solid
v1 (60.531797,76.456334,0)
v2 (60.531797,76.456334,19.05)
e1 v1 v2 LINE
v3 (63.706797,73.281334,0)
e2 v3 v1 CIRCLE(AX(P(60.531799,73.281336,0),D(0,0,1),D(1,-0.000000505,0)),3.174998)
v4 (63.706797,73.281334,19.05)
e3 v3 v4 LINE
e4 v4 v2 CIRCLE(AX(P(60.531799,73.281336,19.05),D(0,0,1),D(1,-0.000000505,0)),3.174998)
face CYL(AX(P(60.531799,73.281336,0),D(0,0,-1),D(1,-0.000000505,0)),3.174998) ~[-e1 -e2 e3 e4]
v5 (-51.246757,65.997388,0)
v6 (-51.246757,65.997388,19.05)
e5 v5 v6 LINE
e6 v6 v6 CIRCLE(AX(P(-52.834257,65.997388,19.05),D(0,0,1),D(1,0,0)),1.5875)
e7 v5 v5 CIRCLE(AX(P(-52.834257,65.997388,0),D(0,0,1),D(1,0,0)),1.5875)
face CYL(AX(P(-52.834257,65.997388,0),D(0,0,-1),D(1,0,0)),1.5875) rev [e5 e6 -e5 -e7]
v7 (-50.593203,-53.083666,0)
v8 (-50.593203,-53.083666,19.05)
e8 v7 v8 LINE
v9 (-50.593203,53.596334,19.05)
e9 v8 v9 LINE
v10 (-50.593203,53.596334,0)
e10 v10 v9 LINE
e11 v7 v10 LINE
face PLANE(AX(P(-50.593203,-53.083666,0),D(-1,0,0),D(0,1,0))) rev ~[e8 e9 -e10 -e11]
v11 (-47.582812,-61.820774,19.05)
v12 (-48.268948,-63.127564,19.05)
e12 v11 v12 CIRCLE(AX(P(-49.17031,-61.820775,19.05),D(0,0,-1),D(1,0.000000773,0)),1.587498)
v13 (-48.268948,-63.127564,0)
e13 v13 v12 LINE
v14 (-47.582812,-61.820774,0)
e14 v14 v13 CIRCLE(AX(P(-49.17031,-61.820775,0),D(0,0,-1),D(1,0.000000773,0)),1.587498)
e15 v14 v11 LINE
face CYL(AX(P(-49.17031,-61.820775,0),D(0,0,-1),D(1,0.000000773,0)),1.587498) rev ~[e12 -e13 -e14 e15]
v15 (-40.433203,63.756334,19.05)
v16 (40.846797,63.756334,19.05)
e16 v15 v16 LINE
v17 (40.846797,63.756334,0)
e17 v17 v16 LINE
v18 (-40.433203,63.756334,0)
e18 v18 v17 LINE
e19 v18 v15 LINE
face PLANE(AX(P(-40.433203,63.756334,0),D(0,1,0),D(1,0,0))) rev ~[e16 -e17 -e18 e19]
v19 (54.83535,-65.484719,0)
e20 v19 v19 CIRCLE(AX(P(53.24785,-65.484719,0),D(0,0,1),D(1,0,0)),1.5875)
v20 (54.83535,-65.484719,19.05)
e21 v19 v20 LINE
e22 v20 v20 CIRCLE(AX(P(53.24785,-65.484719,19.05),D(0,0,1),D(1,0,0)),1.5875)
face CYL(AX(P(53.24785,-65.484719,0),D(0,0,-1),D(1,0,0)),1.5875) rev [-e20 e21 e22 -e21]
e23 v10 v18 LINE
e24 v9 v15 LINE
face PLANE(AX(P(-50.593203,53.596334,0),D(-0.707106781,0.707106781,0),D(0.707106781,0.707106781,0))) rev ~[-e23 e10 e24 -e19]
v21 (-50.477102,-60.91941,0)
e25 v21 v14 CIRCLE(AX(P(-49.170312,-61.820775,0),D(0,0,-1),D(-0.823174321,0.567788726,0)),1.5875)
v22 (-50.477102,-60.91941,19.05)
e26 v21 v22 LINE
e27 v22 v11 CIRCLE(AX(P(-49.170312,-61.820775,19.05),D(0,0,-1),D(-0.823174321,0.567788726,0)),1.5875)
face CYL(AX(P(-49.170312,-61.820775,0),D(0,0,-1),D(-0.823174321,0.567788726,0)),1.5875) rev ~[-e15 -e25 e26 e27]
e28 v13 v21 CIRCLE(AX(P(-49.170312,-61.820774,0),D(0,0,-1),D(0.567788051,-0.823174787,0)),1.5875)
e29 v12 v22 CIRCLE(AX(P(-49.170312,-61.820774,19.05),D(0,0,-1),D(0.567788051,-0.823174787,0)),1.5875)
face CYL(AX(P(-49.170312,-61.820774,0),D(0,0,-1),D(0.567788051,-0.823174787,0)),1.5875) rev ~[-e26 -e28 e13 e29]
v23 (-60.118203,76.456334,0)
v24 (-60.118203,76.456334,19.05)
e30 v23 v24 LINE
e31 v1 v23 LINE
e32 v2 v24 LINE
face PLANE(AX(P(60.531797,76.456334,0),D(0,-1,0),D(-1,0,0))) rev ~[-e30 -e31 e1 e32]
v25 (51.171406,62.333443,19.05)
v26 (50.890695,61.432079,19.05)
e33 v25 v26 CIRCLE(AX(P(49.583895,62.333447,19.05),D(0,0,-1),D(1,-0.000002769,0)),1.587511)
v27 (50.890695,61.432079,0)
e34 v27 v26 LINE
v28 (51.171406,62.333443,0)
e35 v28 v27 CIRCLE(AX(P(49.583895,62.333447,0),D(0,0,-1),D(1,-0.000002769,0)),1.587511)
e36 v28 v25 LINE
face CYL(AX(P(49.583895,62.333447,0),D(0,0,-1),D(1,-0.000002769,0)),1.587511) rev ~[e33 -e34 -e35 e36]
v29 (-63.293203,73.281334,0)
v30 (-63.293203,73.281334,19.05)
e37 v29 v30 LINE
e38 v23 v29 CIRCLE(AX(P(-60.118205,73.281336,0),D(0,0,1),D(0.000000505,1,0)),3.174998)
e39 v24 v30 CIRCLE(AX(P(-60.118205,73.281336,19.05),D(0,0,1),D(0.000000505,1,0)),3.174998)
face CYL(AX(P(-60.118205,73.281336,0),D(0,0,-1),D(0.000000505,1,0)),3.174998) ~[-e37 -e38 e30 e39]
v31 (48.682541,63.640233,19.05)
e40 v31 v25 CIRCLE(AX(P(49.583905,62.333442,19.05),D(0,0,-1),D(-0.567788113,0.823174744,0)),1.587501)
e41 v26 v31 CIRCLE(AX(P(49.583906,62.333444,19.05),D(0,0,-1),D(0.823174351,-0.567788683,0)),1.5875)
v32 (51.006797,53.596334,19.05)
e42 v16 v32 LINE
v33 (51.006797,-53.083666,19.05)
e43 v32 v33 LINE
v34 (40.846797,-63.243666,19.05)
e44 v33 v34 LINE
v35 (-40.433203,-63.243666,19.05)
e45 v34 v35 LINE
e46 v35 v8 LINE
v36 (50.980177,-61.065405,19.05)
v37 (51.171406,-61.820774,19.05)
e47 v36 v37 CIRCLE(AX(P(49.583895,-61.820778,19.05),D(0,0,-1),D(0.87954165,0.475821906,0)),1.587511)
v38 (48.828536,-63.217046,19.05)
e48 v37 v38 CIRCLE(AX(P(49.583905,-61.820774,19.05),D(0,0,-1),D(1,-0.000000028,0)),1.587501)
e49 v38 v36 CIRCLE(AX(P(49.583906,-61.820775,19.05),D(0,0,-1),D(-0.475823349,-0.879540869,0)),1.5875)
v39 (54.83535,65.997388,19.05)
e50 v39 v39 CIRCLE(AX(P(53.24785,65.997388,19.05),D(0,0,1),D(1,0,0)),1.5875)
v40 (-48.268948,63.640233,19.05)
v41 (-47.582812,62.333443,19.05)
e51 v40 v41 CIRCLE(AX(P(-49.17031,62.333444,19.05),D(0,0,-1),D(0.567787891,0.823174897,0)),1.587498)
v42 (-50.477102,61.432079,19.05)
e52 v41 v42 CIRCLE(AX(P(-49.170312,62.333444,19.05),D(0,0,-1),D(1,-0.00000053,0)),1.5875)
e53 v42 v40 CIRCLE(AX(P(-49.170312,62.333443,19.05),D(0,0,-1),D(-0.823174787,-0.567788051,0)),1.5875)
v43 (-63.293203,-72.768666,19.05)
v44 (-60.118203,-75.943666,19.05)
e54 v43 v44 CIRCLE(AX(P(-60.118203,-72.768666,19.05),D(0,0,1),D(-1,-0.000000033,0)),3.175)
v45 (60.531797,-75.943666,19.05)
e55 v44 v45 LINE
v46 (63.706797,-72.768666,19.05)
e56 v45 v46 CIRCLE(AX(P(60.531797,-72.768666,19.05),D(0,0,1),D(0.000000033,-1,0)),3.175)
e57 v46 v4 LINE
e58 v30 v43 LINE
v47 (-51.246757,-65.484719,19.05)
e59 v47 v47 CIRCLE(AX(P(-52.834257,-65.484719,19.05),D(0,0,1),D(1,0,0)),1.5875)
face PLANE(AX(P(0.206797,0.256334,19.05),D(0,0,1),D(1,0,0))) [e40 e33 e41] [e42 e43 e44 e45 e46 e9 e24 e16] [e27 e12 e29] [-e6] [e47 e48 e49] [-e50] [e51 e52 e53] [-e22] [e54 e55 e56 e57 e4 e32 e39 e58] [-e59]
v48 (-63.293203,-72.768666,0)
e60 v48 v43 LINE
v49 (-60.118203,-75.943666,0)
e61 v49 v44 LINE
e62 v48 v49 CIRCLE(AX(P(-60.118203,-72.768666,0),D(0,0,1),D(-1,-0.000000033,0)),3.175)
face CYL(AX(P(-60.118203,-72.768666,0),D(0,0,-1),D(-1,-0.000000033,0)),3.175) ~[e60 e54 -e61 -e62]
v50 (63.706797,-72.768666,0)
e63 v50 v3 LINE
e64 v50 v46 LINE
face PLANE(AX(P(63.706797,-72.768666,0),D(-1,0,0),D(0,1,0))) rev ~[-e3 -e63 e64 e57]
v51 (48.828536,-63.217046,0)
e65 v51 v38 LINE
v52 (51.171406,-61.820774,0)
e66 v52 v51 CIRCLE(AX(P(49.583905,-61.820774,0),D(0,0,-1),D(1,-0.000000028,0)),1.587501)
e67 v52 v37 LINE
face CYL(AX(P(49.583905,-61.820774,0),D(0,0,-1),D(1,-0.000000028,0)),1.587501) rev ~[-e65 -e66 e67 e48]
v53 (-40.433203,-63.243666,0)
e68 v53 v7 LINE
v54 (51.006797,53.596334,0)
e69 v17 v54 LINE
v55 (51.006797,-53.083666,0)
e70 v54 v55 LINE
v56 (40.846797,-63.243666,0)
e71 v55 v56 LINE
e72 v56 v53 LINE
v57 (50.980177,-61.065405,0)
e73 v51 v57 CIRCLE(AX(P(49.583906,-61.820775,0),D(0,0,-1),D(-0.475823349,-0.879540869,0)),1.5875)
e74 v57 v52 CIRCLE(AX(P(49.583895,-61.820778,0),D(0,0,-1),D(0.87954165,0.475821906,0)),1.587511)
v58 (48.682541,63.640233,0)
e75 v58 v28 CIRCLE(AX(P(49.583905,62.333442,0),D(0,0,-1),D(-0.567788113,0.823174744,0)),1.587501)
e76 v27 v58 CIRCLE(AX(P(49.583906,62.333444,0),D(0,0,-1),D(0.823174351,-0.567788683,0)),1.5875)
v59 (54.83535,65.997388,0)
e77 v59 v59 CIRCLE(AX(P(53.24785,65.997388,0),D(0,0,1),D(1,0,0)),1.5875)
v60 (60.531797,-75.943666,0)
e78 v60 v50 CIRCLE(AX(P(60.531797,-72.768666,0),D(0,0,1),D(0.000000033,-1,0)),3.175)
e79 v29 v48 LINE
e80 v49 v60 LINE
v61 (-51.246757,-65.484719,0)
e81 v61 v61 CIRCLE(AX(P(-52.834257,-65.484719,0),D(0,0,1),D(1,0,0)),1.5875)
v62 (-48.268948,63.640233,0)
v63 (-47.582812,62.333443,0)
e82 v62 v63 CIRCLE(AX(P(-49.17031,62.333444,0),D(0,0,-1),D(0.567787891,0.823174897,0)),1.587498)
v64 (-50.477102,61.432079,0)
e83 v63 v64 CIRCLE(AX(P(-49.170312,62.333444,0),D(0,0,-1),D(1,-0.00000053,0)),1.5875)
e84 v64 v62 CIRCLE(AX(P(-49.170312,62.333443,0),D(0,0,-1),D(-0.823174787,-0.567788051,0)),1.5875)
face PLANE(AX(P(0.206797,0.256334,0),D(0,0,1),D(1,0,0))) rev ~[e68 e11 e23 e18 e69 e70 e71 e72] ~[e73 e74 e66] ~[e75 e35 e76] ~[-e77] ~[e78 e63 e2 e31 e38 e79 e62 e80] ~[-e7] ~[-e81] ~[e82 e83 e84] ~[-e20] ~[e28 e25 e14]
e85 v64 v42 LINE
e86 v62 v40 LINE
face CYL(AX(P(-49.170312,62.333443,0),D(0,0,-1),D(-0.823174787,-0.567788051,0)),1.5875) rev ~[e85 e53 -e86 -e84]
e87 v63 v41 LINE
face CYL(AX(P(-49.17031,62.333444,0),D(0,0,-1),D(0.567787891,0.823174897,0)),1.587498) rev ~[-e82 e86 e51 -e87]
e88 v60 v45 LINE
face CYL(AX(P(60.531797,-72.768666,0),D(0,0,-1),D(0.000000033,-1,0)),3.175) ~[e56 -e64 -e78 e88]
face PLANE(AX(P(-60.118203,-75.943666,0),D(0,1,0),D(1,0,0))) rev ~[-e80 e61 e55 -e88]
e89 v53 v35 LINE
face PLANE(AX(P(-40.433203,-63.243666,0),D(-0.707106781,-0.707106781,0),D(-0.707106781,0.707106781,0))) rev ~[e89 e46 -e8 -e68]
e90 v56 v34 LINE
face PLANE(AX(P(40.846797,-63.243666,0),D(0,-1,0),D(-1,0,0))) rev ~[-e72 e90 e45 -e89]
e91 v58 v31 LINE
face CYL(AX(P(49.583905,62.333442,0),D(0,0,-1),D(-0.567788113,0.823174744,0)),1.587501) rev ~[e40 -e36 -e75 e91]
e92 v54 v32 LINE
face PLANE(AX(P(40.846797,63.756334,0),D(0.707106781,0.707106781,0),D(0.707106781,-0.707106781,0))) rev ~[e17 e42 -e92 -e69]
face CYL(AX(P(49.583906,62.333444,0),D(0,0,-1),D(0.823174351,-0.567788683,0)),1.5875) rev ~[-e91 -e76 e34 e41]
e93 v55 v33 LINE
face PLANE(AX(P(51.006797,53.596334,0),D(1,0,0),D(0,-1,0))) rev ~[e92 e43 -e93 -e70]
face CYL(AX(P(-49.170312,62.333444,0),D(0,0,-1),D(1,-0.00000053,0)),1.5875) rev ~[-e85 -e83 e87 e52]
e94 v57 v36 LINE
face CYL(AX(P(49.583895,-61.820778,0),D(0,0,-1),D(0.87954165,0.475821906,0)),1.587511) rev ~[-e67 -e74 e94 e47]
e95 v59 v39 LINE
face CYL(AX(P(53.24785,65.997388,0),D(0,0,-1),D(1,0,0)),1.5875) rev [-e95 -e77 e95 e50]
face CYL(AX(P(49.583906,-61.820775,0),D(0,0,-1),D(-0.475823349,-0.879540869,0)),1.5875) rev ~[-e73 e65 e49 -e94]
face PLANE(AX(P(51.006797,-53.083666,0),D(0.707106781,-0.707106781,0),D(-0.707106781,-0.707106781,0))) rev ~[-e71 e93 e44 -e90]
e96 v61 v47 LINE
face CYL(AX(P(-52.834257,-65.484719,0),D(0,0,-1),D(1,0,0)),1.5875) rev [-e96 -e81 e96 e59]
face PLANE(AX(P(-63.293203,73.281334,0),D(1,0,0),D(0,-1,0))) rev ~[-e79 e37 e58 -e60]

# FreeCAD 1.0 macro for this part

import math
import FreeCAD as App
import Part
import Sketcher
from FreeCAD import Vector
Q = App.Units.Quantity


def add_polygon(sketch, points):
    """Adds a closed chain of lines whose ends are joined by coincident constraints."""
    first, n = sketch.GeometryCount, len(points)
    for a, b in zip(points, points[1:] + points[:1]):
        sketch.addGeometry(Part.LineSegment(App.Vector(*a, 0), App.Vector(*b, 0)), False)
    for i in range(n):
        sketch.addConstraint(Sketcher.Constraint("Coincident", first + i, 2, first + (i + 1) % n, 1))

doc = App.newDocument("Part")
params = doc.addObject("Spreadsheet::Sheet", "Params")
for row, (alias, value) in enumerate([
    ("sketch1_diameter", "0.125 in"),
    ("sketch1_width", "3.2 in"),
    ("sketch1_height", "4.2 in"),
    ("sketch1_radius", "0.1249999 in"),
    ("sketch1_width2", "4.75 in"),
    ("pad1_length", "0.75 in"),
], start=1):
    params.set(f"A{row}", alias)
    params.set(f"B{row}", "=" + value)
    params.setAlias(f"B{row}", alias)

body = doc.addObject("PartDesign::Body", "Body")

# Sketch on XY plane
sketch1 = doc.addObject("Sketcher::SketchObject", "Sketch")
body.addObject(sketch1)
sketch1.AttachmentSupport = (doc.XY_Plane, [""])
sketch1.MapMode = "FlatFace"
sketch1.addGeometry(Part.LineSegment(Vector(60.5, 76.5, 0), Vector(-60.1, 76.5, 0)), False)  # 0
sketch1.addGeometry(Part.ArcOfCircle(Part.Circle(Vector(-60.1, 73.3, 0), Vector(0, 0, 1), 3.2), math.radians(90), math.radians(180)), False)  # 1
sketch1.addGeometry(Part.LineSegment(Vector(-63.3, 73.3, 0), Vector(-63.3, -72.8, 0)), False)  # 2
sketch1.addGeometry(Part.ArcOfCircle(Part.Circle(Vector(-60.1, -72.8, 0), Vector(0, 0, 1), 3.2), math.radians(-180), math.radians(-90)), False)  # 3
sketch1.addGeometry(Part.LineSegment(Vector(-60.1, -75.9, 0), Vector(60.5, -75.9, 0)), False)  # 4
sketch1.addGeometry(Part.ArcOfCircle(Part.Circle(Vector(60.5, -72.8, 0), Vector(0, 0, 1), 3.2), math.radians(-90), math.radians(0)), False)  # 5
sketch1.addGeometry(Part.LineSegment(Vector(63.7, -72.8, 0), Vector(63.7, 73.3, 0)), False)  # 6
sketch1.addGeometry(Part.ArcOfCircle(Part.Circle(Vector(60.5, 73.3, 0), Vector(0, 0, 1), 3.2), math.radians(0), math.radians(90)), False)  # 7
sketch1.addGeometry(Part.Circle(Vector(-52.8, -65.5, 0), Vector(0, 0, 1), 1.6), False)  # 8
sketch1.addGeometry(Part.Circle(Vector(53.2, -65.5, 0), Vector(0, 0, 1), 1.6), False)  # 9
sketch1.addGeometry(Part.ArcOfCircle(Part.Circle(Vector(-49.2, 62.3, 0), Vector(0, 0, 1), 1.6), math.radians(55), math.radians(215)), False)  # 10
sketch1.addGeometry(Part.ArcOfCircle(Part.Circle(Vector(-49.2, 62.3, 0), Vector(0, 0, 1), 1.6), math.radians(0), math.radians(55)), False)  # 11
sketch1.addGeometry(Part.ArcOfCircle(Part.Circle(Vector(-49.2, 62.3, 0), Vector(0, 0, 1), 1.6), math.radians(-145), math.radians(0)), False)  # 12
add_polygon(sketch1, [(-50.6, -53.1), (-50.6, 53.6), (-40.4, 63.8), (40.8, 63.8), (51, 53.6), (51, -53.1), (40.8, -63.2), (-40.4, -63.2)])  # lines 13-20
sketch1.addGeometry(Part.ArcOfCircle(Part.Circle(Vector(-49.2, -61.8, 0), Vector(0, 0, 1), 1.6), math.radians(145), math.radians(305)), False)  # 21
sketch1.addGeometry(Part.ArcOfCircle(Part.Circle(Vector(-49.2, -61.8, 0), Vector(0, 0, 1), 1.6), math.radians(0), math.radians(145)), False)  # 22
sketch1.addGeometry(Part.ArcOfCircle(Part.Circle(Vector(-49.2, -61.8, 0), Vector(0, 0, 1), 1.6), math.radians(-55), math.radians(0)), False)  # 23
sketch1.addGeometry(Part.ArcOfCircle(Part.Circle(Vector(49.6, -61.8, 0), Vector(0, 0, 1), 1.6), math.radians(0), math.radians(28)), False)  # 24
sketch1.addGeometry(Part.ArcOfCircle(Part.Circle(Vector(49.6, -61.8, 0), Vector(0, 0, 1), 1.6), math.radians(-118), math.radians(0)), False)  # 25
sketch1.addGeometry(Part.ArcOfCircle(Part.Circle(Vector(49.6, -61.8, 0), Vector(0, 0, 1), 1.6), math.radians(28), math.radians(242)), False)  # 26
sketch1.addGeometry(Part.ArcOfCircle(Part.Circle(Vector(49.6, 62.3, 0), Vector(0, 0, 1), 1.6), math.radians(0), math.radians(125)), False)  # 27
sketch1.addGeometry(Part.ArcOfCircle(Part.Circle(Vector(49.6, 62.3, 0), Vector(0, 0, 1), 1.6), math.radians(-35), math.radians(0)), False)  # 28
sketch1.addGeometry(Part.ArcOfCircle(Part.Circle(Vector(49.6, 62.3, 0), Vector(0, 0, 1), 1.6), math.radians(125), math.radians(325)), False)  # 29
sketch1.addGeometry(Part.Circle(Vector(-52.8, 66, 0), Vector(0, 0, 1), 1.6), False)  # 30
sketch1.addGeometry(Part.Circle(Vector(53.2, 66, 0), Vector(0, 0, 1), 1.6), False)  # 31
sketch1.addConstraint([
    Sketcher.Constraint("Tangent", 0, 2, 1, 1),
    Sketcher.Constraint("Tangent", 1, 2, 2, 1),
    Sketcher.Constraint("Tangent", 2, 2, 3, 1),
    Sketcher.Constraint("Tangent", 3, 2, 4, 1),
    Sketcher.Constraint("Tangent", 4, 2, 5, 1),
    Sketcher.Constraint("Tangent", 5, 2, 6, 1),
    Sketcher.Constraint("Tangent", 6, 2, 7, 1),
    Sketcher.Constraint("Tangent", 7, 2, 0, 1),
    Sketcher.Constraint("Tangent", 10, 1, 11, 2),
    Sketcher.Constraint("Tangent", 11, 1, 12, 2),
    Sketcher.Constraint("Tangent", 12, 1, 10, 2),
    Sketcher.Constraint("Tangent", 21, 1, 22, 2),
    Sketcher.Constraint("Tangent", 22, 1, 23, 2),
    Sketcher.Constraint("Tangent", 23, 1, 21, 2),
    Sketcher.Constraint("Coincident", 24, 1, 25, 2),
    Sketcher.Constraint("Tangent", 25, 1, 26, 2),
    Sketcher.Constraint("Tangent", 26, 1, 24, 2),
    Sketcher.Constraint("Coincident", 27, 1, 28, 2),
    Sketcher.Constraint("Tangent", 28, 1, 29, 2),
    Sketcher.Constraint("Tangent", 29, 1, 27, 2),
    Sketcher.Constraint("Horizontal", 0),
    Sketcher.Constraint("Vertical", 2),
    Sketcher.Constraint("Horizontal", 4),
    Sketcher.Constraint("Vertical", 6),
    Sketcher.Constraint("Vertical", 13),
    Sketcher.Constraint("Horizontal", 15),
    Sketcher.Constraint("Vertical", 17),
    Sketcher.Constraint("Horizontal", 19),
    Sketcher.Constraint("Equal", 1, 3),
    Sketcher.Constraint("Equal", 3, 5),
    Sketcher.Constraint("Equal", 5, 7),
    Sketcher.Constraint("Equal", 8, 9),
    Sketcher.Constraint("Equal", 9, 10),
    Sketcher.Constraint("Equal", 12, 21),
    Sketcher.Constraint("Equal", 22, 25),
    Sketcher.Constraint("Equal", 25, 26),
    Sketcher.Constraint("Equal", 26, 27),
    Sketcher.Constraint("Equal", 24, 28),
    Sketcher.Constraint("Equal", 29, 30),
    Sketcher.Constraint("Equal", 30, 31),
    Sketcher.Constraint("Perpendicular", 14, 16),
    Sketcher.Constraint("Perpendicular", 16, 18),
    Sketcher.Constraint("Perpendicular", 18, 20),
    Sketcher.Constraint("Horizontal", 8, 3, 9, 3),
    Sketcher.Constraint("Horizontal", 23, 3, 25, 3),
    Sketcher.Constraint("Horizontal", 12, 3, 27, 3),
    Sketcher.Constraint("Horizontal", 30, 3, 31, 3),
    Sketcher.Constraint("Horizontal", 29, 3, 11, 1),
    Sketcher.Constraint("Horizontal", 13, 2, 16, 2),
    Sketcher.Constraint("Horizontal", 17, 2, 20, 2),
    Sketcher.Constraint("Horizontal", 26, 3, 22, 1),
    Sketcher.Constraint("Horizontal", 22, 1, 24, 1),
    Sketcher.Constraint("Horizontal", 11, 1, 27, 1),
    Sketcher.Constraint("Horizontal", 12, 1, 28, 1),
    Sketcher.Constraint("Horizontal", 10, 1, 29, 1),
    Sketcher.Constraint("Vertical", 12, 3, 21, 3),
    Sketcher.Constraint("Vertical", 26, 3, 27, 3),
    Sketcher.Constraint("Vertical", 8, 3, 30, 3),
    Sketcher.Constraint("Vertical", 9, 3, 31, 3),
    Sketcher.Constraint("Vertical", 15, 2, 18, 2),
    Sketcher.Constraint("Vertical", 14, 2, 19, 2),
    Sketcher.Constraint("Vertical", 12, 1, 21, 1),
    Sketcher.Constraint("Vertical", 10, 1, 23, 1),
    Sketcher.Constraint("Diameter", 8, Q("0.125 in")),
    Sketcher.Constraint("DistanceX", 15, 1, 15, 2, Q("3.2 in")),
    Sketcher.Constraint("DistanceY", 13, 1, 13, 2, Q("4.2 in")),
    Sketcher.Constraint("Radius", 1, Q("0.1249999 in")),
    Sketcher.Constraint("DistanceX", 0, 2, 0, 1, Q("4.75 in")),
    Sketcher.Constraint("DistanceY", 2, 2, 2, 1, Q("5.75 in")),
    Sketcher.Constraint("DistanceX", 15, 2, 16, 2, Q("0.4 in")),
    Sketcher.Constraint("DistanceX", 15, 2, 7, 3, Q("0.7750001 in")),
    Sketcher.Constraint("DistanceY", 15, 2, 7, 3, Q("0.3750001 in")),
    Sketcher.Constraint("DistanceX", -1, 1, 7, 3, 60.531799),
    Sketcher.Constraint("DistanceX", 21, 1, -1, 1, 50.477102),
    Sketcher.Constraint("DistanceY", 10, 1, 14, 2, 0.116101),
    Sketcher.Constraint("DistanceX", 28, 3, 28, 1, 1.3068),
    Sketcher.Constraint("DistanceY", 8, 3, -1, 1, 65.484719),
    Sketcher.Constraint("DistanceX", -1, 1, 9, 3, 53.24785),
    Sketcher.Constraint("DistanceY", -1, 1, 30, 3, 65.997388),
    Sketcher.Constraint("DistanceX", 10, 1, -1, 1, 48.268948),
    Sketcher.Constraint("DistanceY", -1, 1, 12, 1, 61.432079),
    Sketcher.Constraint("DistanceY", 21, 1, -1, 1, 60.91941),
    Sketcher.Constraint("DistanceX", -1, 1, 29, 1, 48.682541),
    Sketcher.Constraint("DistanceX", 30, 3, 28, 3, 102.418152),
    Sketcher.Constraint("DistanceX", 25, 1, 24, 3, 0.755359),
    Sketcher.Constraint("DistanceX", 26, 1, 24, 1, 0.191229),
])
sketch1.setExpression("Constraints[71]", "Params.sketch1_diameter")
sketch1.setExpression("Constraints[72]", "Params.sketch1_width")
sketch1.setExpression("Constraints[73]", "Params.sketch1_height")
sketch1.setExpression("Constraints[74]", "Params.sketch1_radius")
sketch1.setExpression("Constraints[75]", "Params.sketch1_width2")
pad1 = doc.addObject("PartDesign::Pad", "Pad")
body.addObject(pad1)
pad1.Profile = sketch1
pad1.setExpression("Length", "Params.pad1_length")

doc.recompute()
